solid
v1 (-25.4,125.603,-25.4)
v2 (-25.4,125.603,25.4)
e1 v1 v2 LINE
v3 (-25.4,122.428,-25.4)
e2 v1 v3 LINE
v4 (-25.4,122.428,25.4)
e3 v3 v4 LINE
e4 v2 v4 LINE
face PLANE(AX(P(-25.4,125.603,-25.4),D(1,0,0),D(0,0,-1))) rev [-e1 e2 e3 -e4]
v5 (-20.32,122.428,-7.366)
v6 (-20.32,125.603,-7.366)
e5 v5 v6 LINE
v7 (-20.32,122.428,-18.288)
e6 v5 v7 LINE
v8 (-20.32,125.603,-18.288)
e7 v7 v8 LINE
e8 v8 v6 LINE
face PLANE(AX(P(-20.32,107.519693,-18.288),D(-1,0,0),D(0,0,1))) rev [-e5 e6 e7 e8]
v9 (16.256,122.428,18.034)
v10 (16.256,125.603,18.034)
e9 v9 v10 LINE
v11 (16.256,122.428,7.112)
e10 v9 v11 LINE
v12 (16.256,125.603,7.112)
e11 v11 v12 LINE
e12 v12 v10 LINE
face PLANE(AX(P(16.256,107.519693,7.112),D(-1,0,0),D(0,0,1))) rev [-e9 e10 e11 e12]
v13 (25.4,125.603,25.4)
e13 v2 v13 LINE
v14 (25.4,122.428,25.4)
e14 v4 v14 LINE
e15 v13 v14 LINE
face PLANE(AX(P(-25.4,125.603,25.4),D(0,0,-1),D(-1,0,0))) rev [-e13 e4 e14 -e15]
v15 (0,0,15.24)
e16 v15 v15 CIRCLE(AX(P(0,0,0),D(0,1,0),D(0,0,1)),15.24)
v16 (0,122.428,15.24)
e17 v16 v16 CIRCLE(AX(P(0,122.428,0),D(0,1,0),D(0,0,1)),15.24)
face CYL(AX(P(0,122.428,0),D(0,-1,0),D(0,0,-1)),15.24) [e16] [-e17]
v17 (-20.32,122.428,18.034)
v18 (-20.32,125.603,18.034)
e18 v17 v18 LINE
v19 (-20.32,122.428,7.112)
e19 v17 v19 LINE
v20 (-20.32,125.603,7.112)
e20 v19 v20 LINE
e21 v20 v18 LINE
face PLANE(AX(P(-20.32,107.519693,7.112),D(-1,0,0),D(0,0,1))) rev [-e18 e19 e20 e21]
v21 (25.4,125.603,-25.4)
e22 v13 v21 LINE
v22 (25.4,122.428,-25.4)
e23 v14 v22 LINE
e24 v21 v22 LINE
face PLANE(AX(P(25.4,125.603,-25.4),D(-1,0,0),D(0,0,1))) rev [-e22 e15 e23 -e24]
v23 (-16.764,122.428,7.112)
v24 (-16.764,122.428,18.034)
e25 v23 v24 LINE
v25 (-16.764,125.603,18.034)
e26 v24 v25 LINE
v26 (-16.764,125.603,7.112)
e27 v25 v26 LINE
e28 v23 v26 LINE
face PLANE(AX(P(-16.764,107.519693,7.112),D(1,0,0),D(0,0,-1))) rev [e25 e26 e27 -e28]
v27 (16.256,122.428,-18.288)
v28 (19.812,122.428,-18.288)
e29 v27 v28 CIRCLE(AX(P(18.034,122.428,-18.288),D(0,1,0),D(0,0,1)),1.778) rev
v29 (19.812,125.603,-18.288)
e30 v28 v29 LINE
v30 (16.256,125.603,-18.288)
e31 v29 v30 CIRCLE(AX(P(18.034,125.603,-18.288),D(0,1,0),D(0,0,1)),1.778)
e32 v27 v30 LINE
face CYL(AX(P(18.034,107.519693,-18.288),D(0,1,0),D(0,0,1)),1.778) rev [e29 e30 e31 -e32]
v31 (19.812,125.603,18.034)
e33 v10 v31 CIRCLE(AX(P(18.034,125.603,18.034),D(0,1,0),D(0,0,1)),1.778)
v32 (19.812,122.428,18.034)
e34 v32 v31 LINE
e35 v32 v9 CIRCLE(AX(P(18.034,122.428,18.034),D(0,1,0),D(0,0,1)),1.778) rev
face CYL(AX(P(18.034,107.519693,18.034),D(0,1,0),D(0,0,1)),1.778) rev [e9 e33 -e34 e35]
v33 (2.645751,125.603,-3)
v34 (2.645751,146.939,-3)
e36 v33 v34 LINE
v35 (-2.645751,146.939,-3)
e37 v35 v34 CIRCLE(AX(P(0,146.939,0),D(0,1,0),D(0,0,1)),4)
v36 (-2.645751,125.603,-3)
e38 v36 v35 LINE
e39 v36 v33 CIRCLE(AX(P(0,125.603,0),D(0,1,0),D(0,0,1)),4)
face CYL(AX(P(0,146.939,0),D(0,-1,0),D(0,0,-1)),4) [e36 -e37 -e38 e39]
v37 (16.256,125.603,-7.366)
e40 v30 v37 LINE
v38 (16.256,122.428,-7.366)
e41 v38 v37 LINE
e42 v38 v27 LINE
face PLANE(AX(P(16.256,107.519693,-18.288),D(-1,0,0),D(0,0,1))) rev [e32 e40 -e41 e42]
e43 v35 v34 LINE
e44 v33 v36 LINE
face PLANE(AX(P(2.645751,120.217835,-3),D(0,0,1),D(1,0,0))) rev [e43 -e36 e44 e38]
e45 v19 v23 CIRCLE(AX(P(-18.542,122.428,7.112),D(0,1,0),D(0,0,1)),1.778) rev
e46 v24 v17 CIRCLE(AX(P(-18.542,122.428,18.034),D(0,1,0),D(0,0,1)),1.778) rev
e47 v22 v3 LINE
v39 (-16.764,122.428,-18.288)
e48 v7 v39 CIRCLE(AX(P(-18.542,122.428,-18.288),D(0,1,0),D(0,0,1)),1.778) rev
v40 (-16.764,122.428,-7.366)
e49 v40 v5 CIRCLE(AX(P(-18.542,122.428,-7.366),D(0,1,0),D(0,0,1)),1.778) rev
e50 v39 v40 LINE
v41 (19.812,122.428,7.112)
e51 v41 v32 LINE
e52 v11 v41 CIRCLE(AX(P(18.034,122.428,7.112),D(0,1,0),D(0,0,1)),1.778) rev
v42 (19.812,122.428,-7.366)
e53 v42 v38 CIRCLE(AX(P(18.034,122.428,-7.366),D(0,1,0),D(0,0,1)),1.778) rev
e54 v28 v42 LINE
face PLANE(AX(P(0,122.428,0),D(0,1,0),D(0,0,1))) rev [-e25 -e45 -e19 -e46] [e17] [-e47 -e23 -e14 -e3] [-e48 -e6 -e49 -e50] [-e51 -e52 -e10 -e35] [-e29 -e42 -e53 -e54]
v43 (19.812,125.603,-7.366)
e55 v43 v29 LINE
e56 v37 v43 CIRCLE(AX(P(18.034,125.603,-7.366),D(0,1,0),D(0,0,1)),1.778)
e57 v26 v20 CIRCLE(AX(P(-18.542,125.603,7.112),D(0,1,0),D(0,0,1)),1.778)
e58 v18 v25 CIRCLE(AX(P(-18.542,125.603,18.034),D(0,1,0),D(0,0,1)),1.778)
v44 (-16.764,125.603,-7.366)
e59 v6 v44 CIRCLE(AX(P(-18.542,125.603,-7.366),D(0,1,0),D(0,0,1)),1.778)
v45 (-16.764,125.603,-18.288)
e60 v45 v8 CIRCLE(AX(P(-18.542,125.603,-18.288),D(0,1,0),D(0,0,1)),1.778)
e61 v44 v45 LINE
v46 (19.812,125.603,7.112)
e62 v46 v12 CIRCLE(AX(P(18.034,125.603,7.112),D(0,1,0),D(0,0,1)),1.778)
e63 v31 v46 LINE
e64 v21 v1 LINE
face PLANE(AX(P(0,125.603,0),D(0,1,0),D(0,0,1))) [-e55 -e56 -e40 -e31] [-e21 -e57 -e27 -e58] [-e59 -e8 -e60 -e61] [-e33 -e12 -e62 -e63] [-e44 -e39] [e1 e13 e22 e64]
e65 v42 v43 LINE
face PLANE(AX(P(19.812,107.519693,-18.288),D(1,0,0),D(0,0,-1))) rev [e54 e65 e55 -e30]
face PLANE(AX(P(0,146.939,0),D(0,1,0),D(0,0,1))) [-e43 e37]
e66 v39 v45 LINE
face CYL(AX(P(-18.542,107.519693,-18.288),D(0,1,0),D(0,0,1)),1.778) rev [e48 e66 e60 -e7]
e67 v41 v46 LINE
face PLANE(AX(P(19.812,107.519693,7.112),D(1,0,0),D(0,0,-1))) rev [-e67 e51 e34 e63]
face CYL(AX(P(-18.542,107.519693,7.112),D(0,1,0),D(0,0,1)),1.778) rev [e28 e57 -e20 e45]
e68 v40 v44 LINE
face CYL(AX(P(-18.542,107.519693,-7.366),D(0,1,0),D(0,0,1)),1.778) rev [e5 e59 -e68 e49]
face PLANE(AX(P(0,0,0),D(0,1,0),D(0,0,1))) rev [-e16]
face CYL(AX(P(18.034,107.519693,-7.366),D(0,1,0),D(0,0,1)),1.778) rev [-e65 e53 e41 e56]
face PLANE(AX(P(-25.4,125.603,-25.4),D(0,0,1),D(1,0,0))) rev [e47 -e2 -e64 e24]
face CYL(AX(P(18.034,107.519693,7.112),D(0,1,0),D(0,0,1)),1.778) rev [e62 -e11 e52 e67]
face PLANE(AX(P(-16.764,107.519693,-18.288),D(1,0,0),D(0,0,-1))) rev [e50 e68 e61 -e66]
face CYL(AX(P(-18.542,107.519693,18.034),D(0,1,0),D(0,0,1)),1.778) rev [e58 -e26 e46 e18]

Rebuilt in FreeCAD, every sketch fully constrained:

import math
import FreeCAD as App
import Part
import Sketcher

V = App.Vector
Q = App.Units.Quantity


def add_polygon(sketch, points):
    """Adds a closed chain of lines whose ends are joined by coincident constraints."""
    first, n = sketch.GeometryCount, len(points)
    for a, b in zip(points, points[1:] + points[:1]):
        sketch.addGeometry(Part.LineSegment(App.Vector(*a, 0), App.Vector(*b, 0)), False)
    for i in range(n):
        sketch.addConstraint(Sketcher.Constraint("Coincident", first + i, 2, first + (i + 1) % n, 1))

doc = App.newDocument("Part")
params = doc.addObject("Spreadsheet::Sheet", "Params")
for row, (alias, value) in enumerate([
    ("sketch1_diameter", "1.2 in"),
    ("pad1_length", "4.82 in"),
    ("sketch2_width", "2 in"),
    ("pad2_length", "0.125 in"),
    ("pad3_length", "0.84 in"),
    ("pocket1_length", "0.84 in"),
    ("sketch5_radius", "0.07 in"),
    ("sketch5_height", "0.43 in"),
    ("pocket2_length", "0.125 in"),
], start=1):
    params.set(f"A{row}", alias)
    params.set(f"B{row}", "=" + value)
    params.setAlias(f"B{row}", alias)

body = doc.addObject("PartDesign::Body", "Body")

# Sketch on XZ plane
sketch1 = body.newObject("Sketcher::SketchObject", "Sketch")
sketch1.AttachmentSupport = (doc.getObject("XZ_Plane"), [""])
sketch1.MapMode = "FlatFace"
sketch1.addGeometry(Part.Circle(V(0, 0, 0), V(0, 0, 1), 15.24), False)
sketch1.addConstraint(Sketcher.Constraint("Coincident", 0, 3, -1, 1))
sketch1.addConstraint(Sketcher.Constraint("Diameter", 0, Q("1.2 in")))
sketch1.setExpression("Constraints[1]", "Params.sketch1_diameter")
pad1 = body.newObject("PartDesign::Pad", "Pad")
pad1.Profile = sketch1
pad1.setExpression("Length", "Params.pad1_length")
pad1.Reversed = True

# Sketch on XZ plane
sketch2 = body.newObject("Sketcher::SketchObject", "Sketch001")
sketch2.AttachmentSupport = (doc.getObject("XZ_Plane"), [""])
sketch2.MapMode = "FlatFace"
sketch2.AttachmentOffset = App.Placement(V(0, 0, -4.82 * 25.4), App.Rotation())
add_polygon(sketch2, [(-25.4, -25.4), (-25.4, 25.4), (25.4, 25.4), (25.4, -25.4)])  # lines 0-3
sketch2.addConstraint(Sketcher.Constraint("Vertical", 0))
sketch2.addConstraint(Sketcher.Constraint("Horizontal", 1))
sketch2.addConstraint(Sketcher.Constraint("Vertical", 2))
sketch2.addConstraint(Sketcher.Constraint("Horizontal", 3))
sketch2.addConstraint(Sketcher.Constraint("Symmetric", 0, 2, 2, 2, -1, 1))
sketch2.addConstraint(Sketcher.Constraint("Equal", 3, 0))
sketch2.addConstraint(Sketcher.Constraint("DistanceX", 1, 1, 1, 2, Q("2 in")))
sketch2.setExpression("Constraints[10]", "Params.sketch2_width")
pad2 = body.newObject("PartDesign::Pad", "Pad001")
pad2.Profile = sketch2
pad2.setExpression("Length", "Params.pad2_length")
pad2.Reversed = True

# Sketch on XZ plane
sketch3 = body.newObject("Sketcher::SketchObject", "Sketch002")
sketch3.AttachmentSupport = (doc.getObject("XZ_Plane"), [""])
sketch3.MapMode = "FlatFace"
sketch3.AttachmentOffset = App.Placement(V(0, 0, -4.945 * 25.4), App.Rotation())
sketch3.addGeometry(Part.Circle(V(0, 0, 0), V(0, 0, 1), 4), False)
sketch3.addConstraint(Sketcher.Constraint("Coincident", 0, 3, -1, 1))
sketch3.addConstraint(Sketcher.Constraint("Diameter", 0, Q("8 mm")))
pad3 = body.newObject("PartDesign::Pad", "Pad002")
pad3.Profile = sketch3
pad3.setExpression("Length", "Params.pad3_length")
pad3.Reversed = True

# Sketch on XZ plane
sketch4 = body.newObject("Sketcher::SketchObject", "Sketch003")
sketch4.AttachmentSupport = (doc.getObject("XZ_Plane"), [""])
sketch4.MapMode = "FlatFace"
sketch4.AttachmentOffset = App.Placement(V(0, 0, -5.785 * 25.4), App.Rotation())
sketch4.addGeometry(Part.LineSegment(V(-2.645751, -3, 0), V(2.645751, -3, 0)), False)
sketch4.addGeometry(Part.ArcOfCircle(Part.Circle(V(0, 0, 0), V(0, 0, 1), 4), math.radians(-131.409622), math.radians(-48.590378)), False)
sketch4.addConstraint(Sketcher.Constraint("Coincident", 0, 1, 1, 1))
sketch4.addConstraint(Sketcher.Constraint("Coincident", 1, 2, 0, 2))
sketch4.addConstraint(Sketcher.Constraint("Horizontal", 0))
sketch4.addConstraint(Sketcher.Constraint("Coincident", 1, 3, -1, 1))
sketch4.addConstraint(Sketcher.Constraint("Radius", 1, Q("4 mm")))
sketch4.addConstraint(Sketcher.Constraint("DistanceY", 0, 1, -1, 1, Q("3 mm")))
pocket1 = body.newObject("PartDesign::Pocket", "Pocket")
pocket1.Profile = sketch4
pocket1.setExpression("Length", "Params.pocket1_length")
pocket1.Reversed = True

# Sketch on XZ plane
sketch5 = body.newObject("Sketcher::SketchObject", "Sketch004")
sketch5.AttachmentSupport = (doc.getObject("XZ_Plane"), [""])
sketch5.MapMode = "FlatFace"
sketch5.AttachmentOffset = App.Placement(V(0, 0, -4.945 * 25.4), App.Rotation())
sketch5.addGeometry(Part.LineSegment(V(-16.764, -7.366, 0), V(-16.764, -18.288, 0)), False)
sketch5.addGeometry(Part.ArcOfCircle(Part.Circle(V(-18.542, -18.288, 0), V(0, 0, 1), 1.778), math.radians(180), math.radians(360)), False)
sketch5.addGeometry(Part.LineSegment(V(-20.32, -18.288, 0), V(-20.32, -7.366, 0)), False)
sketch5.addGeometry(Part.ArcOfCircle(Part.Circle(V(-18.542, -7.366, 0), V(0, 0, 1), 1.778), math.radians(0), math.radians(180)), False)
sketch5.addGeometry(Part.LineSegment(V(-16.764, 18.034, 0), V(-16.764, 7.112, 0)), False)
sketch5.addGeometry(Part.ArcOfCircle(Part.Circle(V(-18.542, 7.112, 0), V(0, 0, 1), 1.778), math.radians(180), math.radians(360)), False)
sketch5.addGeometry(Part.LineSegment(V(-20.32, 7.112, 0), V(-20.32, 18.034, 0)), False)
sketch5.addGeometry(Part.ArcOfCircle(Part.Circle(V(-18.542, 18.034, 0), V(0, 0, 1), 1.778), math.radians(0), math.radians(180)), False)
sketch5.addGeometry(Part.LineSegment(V(19.812, 18.034, 0), V(19.812, 7.112, 0)), False)
sketch5.addGeometry(Part.ArcOfCircle(Part.Circle(V(18.034, 7.112, 0), V(0, 0, 1), 1.778), math.radians(180), math.radians(360)), False)
sketch5.addGeometry(Part.LineSegment(V(16.256, 7.112, 0), V(16.256, 18.034, 0)), False)
sketch5.addGeometry(Part.ArcOfCircle(Part.Circle(V(18.034, 18.034, 0), V(0, 0, 1), 1.778), math.radians(0), math.radians(180)), False)
sketch5.addGeometry(Part.LineSegment(V(19.812, -7.366, 0), V(19.812, -18.288, 0)), False)
sketch5.addGeometry(Part.ArcOfCircle(Part.Circle(V(18.034, -18.288, 0), V(0, 0, 1), 1.778), math.radians(180), math.radians(360)), False)
sketch5.addGeometry(Part.LineSegment(V(16.256, -18.288, 0), V(16.256, -7.366, 0)), False)
sketch5.addGeometry(Part.ArcOfCircle(Part.Circle(V(18.034, -7.366, 0), V(0, 0, 1), 1.778), math.radians(0), math.radians(180)), False)
sketch5.addConstraint(Sketcher.Constraint("Tangent", 0, 2, 1, 2))
sketch5.addConstraint(Sketcher.Constraint("Tangent", 1, 1, 2, 1))
sketch5.addConstraint(Sketcher.Constraint("Tangent", 2, 2, 3, 2))
sketch5.addConstraint(Sketcher.Constraint("Tangent", 3, 1, 0, 1))
sketch5.addConstraint(Sketcher.Constraint("Tangent", 4, 2, 5, 2))
sketch5.addConstraint(Sketcher.Constraint("Tangent", 5, 1, 6, 1))
sketch5.addConstraint(Sketcher.Constraint("Tangent", 6, 2, 7, 2))
sketch5.addConstraint(Sketcher.Constraint("Tangent", 7, 1, 4, 1))
sketch5.addConstraint(Sketcher.Constraint("Tangent", 8, 2, 9, 2))
sketch5.addConstraint(Sketcher.Constraint("Tangent", 9, 1, 10, 1))
sketch5.addConstraint(Sketcher.Constraint("Tangent", 10, 2, 11, 2))
sketch5.addConstraint(Sketcher.Constraint("Tangent", 11, 1, 8, 1))
sketch5.addConstraint(Sketcher.Constraint("Tangent", 12, 2, 13, 2))
sketch5.addConstraint(Sketcher.Constraint("Tangent", 13, 1, 14, 1))
sketch5.addConstraint(Sketcher.Constraint("Tangent", 14, 2, 15, 2))
sketch5.addConstraint(Sketcher.Constraint("Tangent", 15, 1, 12, 1))
sketch5.addConstraint(Sketcher.Constraint("Vertical", 0))
sketch5.addConstraint(Sketcher.Constraint("Vertical", 2))
sketch5.addConstraint(Sketcher.Constraint("Vertical", 4))
sketch5.addConstraint(Sketcher.Constraint("Vertical", 6))
sketch5.addConstraint(Sketcher.Constraint("Vertical", 8))
sketch5.addConstraint(Sketcher.Constraint("Vertical", 10))
sketch5.addConstraint(Sketcher.Constraint("Vertical", 12))
sketch5.addConstraint(Sketcher.Constraint("Vertical", 14))
sketch5.addConstraint(Sketcher.Constraint("Equal", 3, 5))
sketch5.addConstraint(Sketcher.Constraint("Equal", 7, 9))
sketch5.addConstraint(Sketcher.Constraint("Equal", 11, 13))
sketch5.addConstraint(Sketcher.Constraint("Horizontal", 5, 3, 9, 3))
sketch5.addConstraint(Sketcher.Constraint("Horizontal", 7, 3, 11, 3))
sketch5.addConstraint(Sketcher.Constraint("Horizontal", 1, 3, 13, 3))
sketch5.addConstraint(Sketcher.Constraint("Horizontal", 3, 3, 15, 3))
sketch5.addConstraint(Sketcher.Constraint("Vertical", 3, 3, 5, 3))
sketch5.addConstraint(Sketcher.Constraint("Vertical", 11, 3, 13, 3))
sketch5.addConstraint(Sketcher.Constraint("Equal", 2, 4))
sketch5.addConstraint(Sketcher.Constraint("Radius", 1, Q("0.07 in")))
sketch5.addConstraint(Sketcher.Constraint("DistanceY", 1, 3, 5, 3, Q("1 in")))
sketch5.addConstraint(Sketcher.Constraint("DistanceY", 0, 2, 0, 1, Q("0.43 in")))
sketch5.addConstraint(Sketcher.Constraint("DistanceX", 1, 1, -1, 1, Q("0.8 in")))
sketch5.addConstraint(Sketcher.Constraint("DistanceY", 1, 3, -1, 1, Q("0.72 in")))
sketch5.addConstraint(Sketcher.Constraint("DistanceX", -1, 1, 9, 3, Q("0.71 in")))
sketch5.setExpression("Constraints[34]", "Params.sketch5_radius")
sketch5.setExpression("Constraints[36]", "Params.sketch5_height")
pocket2 = body.newObject("PartDesign::Pocket", "Pocket001")
pocket2.Profile = sketch5
pocket2.setExpression("Length", "Params.pocket2_length")
pocket2.Reversed = True

doc.recompute()
